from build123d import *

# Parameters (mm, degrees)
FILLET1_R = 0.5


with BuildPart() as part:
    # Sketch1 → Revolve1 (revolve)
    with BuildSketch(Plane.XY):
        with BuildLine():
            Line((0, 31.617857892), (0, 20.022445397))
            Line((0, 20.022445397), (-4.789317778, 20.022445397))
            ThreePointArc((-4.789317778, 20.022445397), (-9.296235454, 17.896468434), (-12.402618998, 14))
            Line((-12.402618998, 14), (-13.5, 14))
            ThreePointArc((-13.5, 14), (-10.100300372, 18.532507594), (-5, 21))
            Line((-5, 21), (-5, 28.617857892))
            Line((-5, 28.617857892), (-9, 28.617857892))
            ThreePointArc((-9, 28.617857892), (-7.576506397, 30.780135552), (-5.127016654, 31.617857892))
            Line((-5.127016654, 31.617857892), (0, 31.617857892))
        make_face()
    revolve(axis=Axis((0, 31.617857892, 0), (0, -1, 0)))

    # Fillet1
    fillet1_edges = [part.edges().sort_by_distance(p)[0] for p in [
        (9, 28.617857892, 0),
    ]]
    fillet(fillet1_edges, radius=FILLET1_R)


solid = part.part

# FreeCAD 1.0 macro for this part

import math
import FreeCAD as App
import Part
import Sketcher
from FreeCAD import Vector


def edges_at(feature, points):
    """Names of the edges that pass closest to the given points."""
    edges = feature.Shape.Edges
    near = lambda p: min(range(len(edges)), key=lambda i: edges[i].distToShape(Part.Vertex(*p))[0])
    return sorted({f"Edge{near(p) + 1}" for p in points})

doc = App.newDocument("Part")
body = doc.addObject("PartDesign::Body", "Body")

# Sketch on XY plane
sketch1 = body.newObject("Sketcher::SketchObject", "Sketch")
sketch1.AttachmentSupport = (doc.getObject("XY_Plane"), [""])
sketch1.MapMode = "FlatFace"
sketch1.addGeometry([
    Part.LineSegment(Vector(0, 20, 0), Vector(0, 31.6, 0)),  # 0
    Part.LineSegment(Vector(0, 31.6, 0), Vector(-5.1, 31.6, 0)),  # 1
    Part.ArcOfCircle(Part.Circle(Vector(-5.1, 27.6, 0), Vector(0, 0, 1), 4), math.radians(90), math.radians(166)),  # 2
    Part.LineSegment(Vector(-9, 28.6, 0), Vector(-5, 28.6, 0)),  # 3
    Part.LineSegment(Vector(-5, 28.6, 0), Vector(-5, 21, 0)),  # 4
    Part.ArcOfCircle(Part.Circle(Vector(-2.5, 9.3, 0), Vector(0, 0, 1), 12), math.radians(102), math.radians(157)),  # 5
    Part.LineSegment(Vector(-13.5, 14, 0), Vector(-12.4, 14, 0)),  # 6
    Part.ArcOfCircle(Part.Circle(Vector(-2.5, 9.3, 0), Vector(0, 0, 1), 11), math.radians(102), math.radians(155)),  # 7
    Part.LineSegment(Vector(-4.8, 20, 0), Vector(0, 20, 0)),  # 8
], False)
sketch1.addConstraint([
    Sketcher.Constraint("Coincident", 0, 2, 1, 1),
    Sketcher.Constraint("Tangent", 1, 2, 2, 1),
    Sketcher.Constraint("Coincident", 2, 2, 3, 1),
    Sketcher.Constraint("Coincident", 3, 2, 4, 1),
    Sketcher.Constraint("Coincident", 4, 2, 5, 1),
    Sketcher.Constraint("Coincident", 5, 2, 6, 1),
    Sketcher.Constraint("Coincident", 6, 2, 7, 2),
    Sketcher.Constraint("Coincident", 7, 1, 8, 1),
    Sketcher.Constraint("Coincident", 8, 2, 0, 1),
    Sketcher.Constraint("Vertical", 0),
    Sketcher.Constraint("Horizontal", 1),
    Sketcher.Constraint("Horizontal", 3),
    Sketcher.Constraint("Vertical", 4),
    Sketcher.Constraint("Horizontal", 6),
    Sketcher.Constraint("Horizontal", 8),
    Sketcher.Constraint("Coincident", 7, 3, 5, 3),
    Sketcher.Constraint("PointOnObject", 0, 2, -2),
    Sketcher.Constraint("Radius", 2, 4.0),
    Sketcher.Constraint("Radius", 5, 12.0),
    Sketcher.Constraint("Radius", 7, 11.0),
    Sketcher.Constraint("DistanceX", 3, 1, 3, 2, 4.0),
    Sketcher.Constraint("DistanceX", 2, 2, -1, 1, 9.0),
    Sketcher.Constraint("DistanceY", -1, 1, 4, 2, 21.0),
    Sketcher.Constraint("DistanceY", -1, 1, 5, 2, 14.0),
    Sketcher.Constraint("DistanceY", 2, 3, 2, 2, 1.0),
    Sketcher.Constraint("DistanceX", 5, 2, -1, 1, 13.5),
    Sketcher.Constraint("DistanceX", 2, 3, 7, 1, 0.337699),
    Sketcher.Constraint("DistanceY", 0, 1, 0, 2, 11.595412),
])
revolution = body.newObject("PartDesign::Revolution", "Revolution")
revolution.Profile = sketch1
revolution.ReferenceAxis = (sketch1, ["V_Axis"])
revolution.Angle = 360
doc.recompute()

fillet = body.newObject("PartDesign::Fillet", "Fillet")
fillet.Base = (revolution, edges_at(revolution, [(9, 28.618, 0)]))
fillet.Radius = 0.5

doc.recompute()
